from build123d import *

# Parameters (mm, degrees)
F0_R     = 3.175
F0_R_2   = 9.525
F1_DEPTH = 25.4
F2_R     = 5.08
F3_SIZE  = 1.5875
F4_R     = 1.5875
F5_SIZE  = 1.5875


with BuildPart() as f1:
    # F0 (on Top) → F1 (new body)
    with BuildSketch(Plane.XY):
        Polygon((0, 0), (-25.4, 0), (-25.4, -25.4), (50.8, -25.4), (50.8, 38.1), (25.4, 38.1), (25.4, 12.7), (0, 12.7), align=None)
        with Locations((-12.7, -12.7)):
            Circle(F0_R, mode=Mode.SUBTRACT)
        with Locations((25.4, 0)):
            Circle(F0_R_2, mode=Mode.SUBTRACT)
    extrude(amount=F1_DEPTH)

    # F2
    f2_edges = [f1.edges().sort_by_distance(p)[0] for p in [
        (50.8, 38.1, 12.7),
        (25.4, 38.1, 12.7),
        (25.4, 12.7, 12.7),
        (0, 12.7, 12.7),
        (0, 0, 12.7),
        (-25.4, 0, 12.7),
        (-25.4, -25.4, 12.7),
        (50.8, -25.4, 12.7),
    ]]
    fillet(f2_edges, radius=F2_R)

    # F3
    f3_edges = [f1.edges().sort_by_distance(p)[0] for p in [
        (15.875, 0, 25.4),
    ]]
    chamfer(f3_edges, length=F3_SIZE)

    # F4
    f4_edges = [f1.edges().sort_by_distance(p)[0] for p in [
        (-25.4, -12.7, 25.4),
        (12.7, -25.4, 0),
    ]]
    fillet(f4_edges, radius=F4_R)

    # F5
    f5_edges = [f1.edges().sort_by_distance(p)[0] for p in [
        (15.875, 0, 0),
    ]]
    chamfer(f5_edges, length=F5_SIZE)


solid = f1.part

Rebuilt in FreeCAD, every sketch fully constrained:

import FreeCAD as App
import Part
import Sketcher
from FreeCAD import Vector
Q = App.Units.Quantity


def edges_at(feature, points):
    """Names of the edges that pass closest to the given points."""
    edges = feature.Shape.Edges
    near = lambda p: min(range(len(edges)), key=lambda i: edges[i].distToShape(Part.Vertex(*p))[0])
    return sorted({f"Edge{near(p) + 1}" for p in points})

doc = App.newDocument("Part")
body = doc.addObject("PartDesign::Body", "Body")

sketch1 = body.newObject("Sketcher::SketchObject", "Sketch")
sketch1.AttachmentSupport = (doc.getObject("XY_Plane"), [""])
sketch1.MapMode = "FlatFace"
sketch1.addGeometry([
    Part.LineSegment(Vector(0, 0, 0), Vector(-25.4, 0, 0)),
    Part.LineSegment(Vector(-25.4, 0, 0), Vector(-25.4, -25.4, 0)),
    Part.LineSegment(Vector(-25.4, -25.4, 0), Vector(50.8, -25.4, 0)),
    Part.LineSegment(Vector(50.8, -25.4, 0), Vector(50.8, 38.1, 0)),
    Part.LineSegment(Vector(50.8, 38.1, 0), Vector(25.4, 38.1, 0)),
    Part.LineSegment(Vector(25.4, 38.1, 0), Vector(25.4, 12.7, 0)),
    Part.LineSegment(Vector(25.4, 12.7, 0), Vector(0, 12.7, 0)),
    Part.LineSegment(Vector(0, 12.7, 0), Vector(0, 0, 0)),
    Part.Circle(Vector(-12.7, -12.7, 0), Vector(0, 0, 1), 3.2),
    Part.Circle(Vector(25.4, 0, 0), Vector(0, 0, 1), 9.5),
], False)
sketch1.addConstraint([
    Sketcher.Constraint("Coincident", 0, 2, 1, 1),
    Sketcher.Constraint("Coincident", 1, 2, 2, 1),
    Sketcher.Constraint("Coincident", 2, 2, 3, 1),
    Sketcher.Constraint("Coincident", 3, 2, 4, 1),
    Sketcher.Constraint("Coincident", 4, 2, 5, 1),
    Sketcher.Constraint("Coincident", 5, 2, 6, 1),
    Sketcher.Constraint("Coincident", 6, 2, 7, 1),
    Sketcher.Constraint("Coincident", 7, 2, 0, 1),
    Sketcher.Constraint("Horizontal", 0),
    Sketcher.Constraint("Vertical", 1),
    Sketcher.Constraint("Horizontal", 2),
    Sketcher.Constraint("Vertical", 3),
    Sketcher.Constraint("Horizontal", 4),
    Sketcher.Constraint("Vertical", 5),
    Sketcher.Constraint("Horizontal", 6),
    Sketcher.Constraint("Vertical", 7),
    Sketcher.Constraint("Coincident", 7, 2, -1, 1),
    Sketcher.Constraint("PointOnObject", 9, 3, -1),
    Sketcher.Constraint("Vertical", 9, 3, 4, 2),
    Sketcher.Constraint("Equal", 0, 4),
    Sketcher.Constraint("Equal", 4, 6),
    Sketcher.Constraint("Equal", 6, 1),
    Sketcher.Constraint("Equal", 1, 5),
    Sketcher.Constraint("Diameter", 8, Q("0.25 in")),
    Sketcher.Constraint("Diameter", 9, Q("0.75 in")),
    Sketcher.Constraint("DistanceX", 0, 2, 0, 1, Q("1 in")),
    Sketcher.Constraint("DistanceY", 3, 1, 3, 2, Q("2.5 in")),
    Sketcher.Constraint("DistanceY", 8, 3, 3, 2, Q("2 in")),
    Sketcher.Constraint("DistanceX", 8, 3, -1, 1, Q("0.5 in")),
])
pad1 = body.newObject("PartDesign::Pad", "Pad")
pad1.Profile = sketch1
pad1.Length = Q("1 in")
doc.recompute()

fillet = body.newObject("PartDesign::Fillet", "Fillet")
fillet.Base = (pad1, edges_at(pad1, [
    (50.8, 38.1, 12.7),
    (25.4, 38.1, 12.7),
    (25.4, 12.7, 12.7),
    (0, 12.7, 12.7),
    (0, 0, 12.7),
    (-25.4, 0, 12.7),
    (-25.4, -25.4, 12.7),
    (50.8, -25.4, 12.7),
]))
fillet.Radius = Q("0.2 in")
doc.recompute()

chamfer = body.newObject("PartDesign::Chamfer", "Chamfer")
chamfer.Base = (fillet, edges_at(fillet, [(15.875, 0, 25.4)]))
chamfer.Size = Q("0.0625 in")
doc.recompute()

fillet2 = body.newObject("PartDesign::Fillet", "Fillet001")
fillet2.Base = (chamfer, edges_at(chamfer, [(-25.4, -12.7, 25.4), (12.7, -25.4, 0)]))
fillet2.Radius = Q("0.0625 in")
doc.recompute()

chamfer2 = body.newObject("PartDesign::Chamfer", "Chamfer001")
chamfer2.Base = (fillet2, edges_at(fillet2, [(15.875, 0, 0)]))
chamfer2.Size = Q("0.0625 in")

doc.recompute()
